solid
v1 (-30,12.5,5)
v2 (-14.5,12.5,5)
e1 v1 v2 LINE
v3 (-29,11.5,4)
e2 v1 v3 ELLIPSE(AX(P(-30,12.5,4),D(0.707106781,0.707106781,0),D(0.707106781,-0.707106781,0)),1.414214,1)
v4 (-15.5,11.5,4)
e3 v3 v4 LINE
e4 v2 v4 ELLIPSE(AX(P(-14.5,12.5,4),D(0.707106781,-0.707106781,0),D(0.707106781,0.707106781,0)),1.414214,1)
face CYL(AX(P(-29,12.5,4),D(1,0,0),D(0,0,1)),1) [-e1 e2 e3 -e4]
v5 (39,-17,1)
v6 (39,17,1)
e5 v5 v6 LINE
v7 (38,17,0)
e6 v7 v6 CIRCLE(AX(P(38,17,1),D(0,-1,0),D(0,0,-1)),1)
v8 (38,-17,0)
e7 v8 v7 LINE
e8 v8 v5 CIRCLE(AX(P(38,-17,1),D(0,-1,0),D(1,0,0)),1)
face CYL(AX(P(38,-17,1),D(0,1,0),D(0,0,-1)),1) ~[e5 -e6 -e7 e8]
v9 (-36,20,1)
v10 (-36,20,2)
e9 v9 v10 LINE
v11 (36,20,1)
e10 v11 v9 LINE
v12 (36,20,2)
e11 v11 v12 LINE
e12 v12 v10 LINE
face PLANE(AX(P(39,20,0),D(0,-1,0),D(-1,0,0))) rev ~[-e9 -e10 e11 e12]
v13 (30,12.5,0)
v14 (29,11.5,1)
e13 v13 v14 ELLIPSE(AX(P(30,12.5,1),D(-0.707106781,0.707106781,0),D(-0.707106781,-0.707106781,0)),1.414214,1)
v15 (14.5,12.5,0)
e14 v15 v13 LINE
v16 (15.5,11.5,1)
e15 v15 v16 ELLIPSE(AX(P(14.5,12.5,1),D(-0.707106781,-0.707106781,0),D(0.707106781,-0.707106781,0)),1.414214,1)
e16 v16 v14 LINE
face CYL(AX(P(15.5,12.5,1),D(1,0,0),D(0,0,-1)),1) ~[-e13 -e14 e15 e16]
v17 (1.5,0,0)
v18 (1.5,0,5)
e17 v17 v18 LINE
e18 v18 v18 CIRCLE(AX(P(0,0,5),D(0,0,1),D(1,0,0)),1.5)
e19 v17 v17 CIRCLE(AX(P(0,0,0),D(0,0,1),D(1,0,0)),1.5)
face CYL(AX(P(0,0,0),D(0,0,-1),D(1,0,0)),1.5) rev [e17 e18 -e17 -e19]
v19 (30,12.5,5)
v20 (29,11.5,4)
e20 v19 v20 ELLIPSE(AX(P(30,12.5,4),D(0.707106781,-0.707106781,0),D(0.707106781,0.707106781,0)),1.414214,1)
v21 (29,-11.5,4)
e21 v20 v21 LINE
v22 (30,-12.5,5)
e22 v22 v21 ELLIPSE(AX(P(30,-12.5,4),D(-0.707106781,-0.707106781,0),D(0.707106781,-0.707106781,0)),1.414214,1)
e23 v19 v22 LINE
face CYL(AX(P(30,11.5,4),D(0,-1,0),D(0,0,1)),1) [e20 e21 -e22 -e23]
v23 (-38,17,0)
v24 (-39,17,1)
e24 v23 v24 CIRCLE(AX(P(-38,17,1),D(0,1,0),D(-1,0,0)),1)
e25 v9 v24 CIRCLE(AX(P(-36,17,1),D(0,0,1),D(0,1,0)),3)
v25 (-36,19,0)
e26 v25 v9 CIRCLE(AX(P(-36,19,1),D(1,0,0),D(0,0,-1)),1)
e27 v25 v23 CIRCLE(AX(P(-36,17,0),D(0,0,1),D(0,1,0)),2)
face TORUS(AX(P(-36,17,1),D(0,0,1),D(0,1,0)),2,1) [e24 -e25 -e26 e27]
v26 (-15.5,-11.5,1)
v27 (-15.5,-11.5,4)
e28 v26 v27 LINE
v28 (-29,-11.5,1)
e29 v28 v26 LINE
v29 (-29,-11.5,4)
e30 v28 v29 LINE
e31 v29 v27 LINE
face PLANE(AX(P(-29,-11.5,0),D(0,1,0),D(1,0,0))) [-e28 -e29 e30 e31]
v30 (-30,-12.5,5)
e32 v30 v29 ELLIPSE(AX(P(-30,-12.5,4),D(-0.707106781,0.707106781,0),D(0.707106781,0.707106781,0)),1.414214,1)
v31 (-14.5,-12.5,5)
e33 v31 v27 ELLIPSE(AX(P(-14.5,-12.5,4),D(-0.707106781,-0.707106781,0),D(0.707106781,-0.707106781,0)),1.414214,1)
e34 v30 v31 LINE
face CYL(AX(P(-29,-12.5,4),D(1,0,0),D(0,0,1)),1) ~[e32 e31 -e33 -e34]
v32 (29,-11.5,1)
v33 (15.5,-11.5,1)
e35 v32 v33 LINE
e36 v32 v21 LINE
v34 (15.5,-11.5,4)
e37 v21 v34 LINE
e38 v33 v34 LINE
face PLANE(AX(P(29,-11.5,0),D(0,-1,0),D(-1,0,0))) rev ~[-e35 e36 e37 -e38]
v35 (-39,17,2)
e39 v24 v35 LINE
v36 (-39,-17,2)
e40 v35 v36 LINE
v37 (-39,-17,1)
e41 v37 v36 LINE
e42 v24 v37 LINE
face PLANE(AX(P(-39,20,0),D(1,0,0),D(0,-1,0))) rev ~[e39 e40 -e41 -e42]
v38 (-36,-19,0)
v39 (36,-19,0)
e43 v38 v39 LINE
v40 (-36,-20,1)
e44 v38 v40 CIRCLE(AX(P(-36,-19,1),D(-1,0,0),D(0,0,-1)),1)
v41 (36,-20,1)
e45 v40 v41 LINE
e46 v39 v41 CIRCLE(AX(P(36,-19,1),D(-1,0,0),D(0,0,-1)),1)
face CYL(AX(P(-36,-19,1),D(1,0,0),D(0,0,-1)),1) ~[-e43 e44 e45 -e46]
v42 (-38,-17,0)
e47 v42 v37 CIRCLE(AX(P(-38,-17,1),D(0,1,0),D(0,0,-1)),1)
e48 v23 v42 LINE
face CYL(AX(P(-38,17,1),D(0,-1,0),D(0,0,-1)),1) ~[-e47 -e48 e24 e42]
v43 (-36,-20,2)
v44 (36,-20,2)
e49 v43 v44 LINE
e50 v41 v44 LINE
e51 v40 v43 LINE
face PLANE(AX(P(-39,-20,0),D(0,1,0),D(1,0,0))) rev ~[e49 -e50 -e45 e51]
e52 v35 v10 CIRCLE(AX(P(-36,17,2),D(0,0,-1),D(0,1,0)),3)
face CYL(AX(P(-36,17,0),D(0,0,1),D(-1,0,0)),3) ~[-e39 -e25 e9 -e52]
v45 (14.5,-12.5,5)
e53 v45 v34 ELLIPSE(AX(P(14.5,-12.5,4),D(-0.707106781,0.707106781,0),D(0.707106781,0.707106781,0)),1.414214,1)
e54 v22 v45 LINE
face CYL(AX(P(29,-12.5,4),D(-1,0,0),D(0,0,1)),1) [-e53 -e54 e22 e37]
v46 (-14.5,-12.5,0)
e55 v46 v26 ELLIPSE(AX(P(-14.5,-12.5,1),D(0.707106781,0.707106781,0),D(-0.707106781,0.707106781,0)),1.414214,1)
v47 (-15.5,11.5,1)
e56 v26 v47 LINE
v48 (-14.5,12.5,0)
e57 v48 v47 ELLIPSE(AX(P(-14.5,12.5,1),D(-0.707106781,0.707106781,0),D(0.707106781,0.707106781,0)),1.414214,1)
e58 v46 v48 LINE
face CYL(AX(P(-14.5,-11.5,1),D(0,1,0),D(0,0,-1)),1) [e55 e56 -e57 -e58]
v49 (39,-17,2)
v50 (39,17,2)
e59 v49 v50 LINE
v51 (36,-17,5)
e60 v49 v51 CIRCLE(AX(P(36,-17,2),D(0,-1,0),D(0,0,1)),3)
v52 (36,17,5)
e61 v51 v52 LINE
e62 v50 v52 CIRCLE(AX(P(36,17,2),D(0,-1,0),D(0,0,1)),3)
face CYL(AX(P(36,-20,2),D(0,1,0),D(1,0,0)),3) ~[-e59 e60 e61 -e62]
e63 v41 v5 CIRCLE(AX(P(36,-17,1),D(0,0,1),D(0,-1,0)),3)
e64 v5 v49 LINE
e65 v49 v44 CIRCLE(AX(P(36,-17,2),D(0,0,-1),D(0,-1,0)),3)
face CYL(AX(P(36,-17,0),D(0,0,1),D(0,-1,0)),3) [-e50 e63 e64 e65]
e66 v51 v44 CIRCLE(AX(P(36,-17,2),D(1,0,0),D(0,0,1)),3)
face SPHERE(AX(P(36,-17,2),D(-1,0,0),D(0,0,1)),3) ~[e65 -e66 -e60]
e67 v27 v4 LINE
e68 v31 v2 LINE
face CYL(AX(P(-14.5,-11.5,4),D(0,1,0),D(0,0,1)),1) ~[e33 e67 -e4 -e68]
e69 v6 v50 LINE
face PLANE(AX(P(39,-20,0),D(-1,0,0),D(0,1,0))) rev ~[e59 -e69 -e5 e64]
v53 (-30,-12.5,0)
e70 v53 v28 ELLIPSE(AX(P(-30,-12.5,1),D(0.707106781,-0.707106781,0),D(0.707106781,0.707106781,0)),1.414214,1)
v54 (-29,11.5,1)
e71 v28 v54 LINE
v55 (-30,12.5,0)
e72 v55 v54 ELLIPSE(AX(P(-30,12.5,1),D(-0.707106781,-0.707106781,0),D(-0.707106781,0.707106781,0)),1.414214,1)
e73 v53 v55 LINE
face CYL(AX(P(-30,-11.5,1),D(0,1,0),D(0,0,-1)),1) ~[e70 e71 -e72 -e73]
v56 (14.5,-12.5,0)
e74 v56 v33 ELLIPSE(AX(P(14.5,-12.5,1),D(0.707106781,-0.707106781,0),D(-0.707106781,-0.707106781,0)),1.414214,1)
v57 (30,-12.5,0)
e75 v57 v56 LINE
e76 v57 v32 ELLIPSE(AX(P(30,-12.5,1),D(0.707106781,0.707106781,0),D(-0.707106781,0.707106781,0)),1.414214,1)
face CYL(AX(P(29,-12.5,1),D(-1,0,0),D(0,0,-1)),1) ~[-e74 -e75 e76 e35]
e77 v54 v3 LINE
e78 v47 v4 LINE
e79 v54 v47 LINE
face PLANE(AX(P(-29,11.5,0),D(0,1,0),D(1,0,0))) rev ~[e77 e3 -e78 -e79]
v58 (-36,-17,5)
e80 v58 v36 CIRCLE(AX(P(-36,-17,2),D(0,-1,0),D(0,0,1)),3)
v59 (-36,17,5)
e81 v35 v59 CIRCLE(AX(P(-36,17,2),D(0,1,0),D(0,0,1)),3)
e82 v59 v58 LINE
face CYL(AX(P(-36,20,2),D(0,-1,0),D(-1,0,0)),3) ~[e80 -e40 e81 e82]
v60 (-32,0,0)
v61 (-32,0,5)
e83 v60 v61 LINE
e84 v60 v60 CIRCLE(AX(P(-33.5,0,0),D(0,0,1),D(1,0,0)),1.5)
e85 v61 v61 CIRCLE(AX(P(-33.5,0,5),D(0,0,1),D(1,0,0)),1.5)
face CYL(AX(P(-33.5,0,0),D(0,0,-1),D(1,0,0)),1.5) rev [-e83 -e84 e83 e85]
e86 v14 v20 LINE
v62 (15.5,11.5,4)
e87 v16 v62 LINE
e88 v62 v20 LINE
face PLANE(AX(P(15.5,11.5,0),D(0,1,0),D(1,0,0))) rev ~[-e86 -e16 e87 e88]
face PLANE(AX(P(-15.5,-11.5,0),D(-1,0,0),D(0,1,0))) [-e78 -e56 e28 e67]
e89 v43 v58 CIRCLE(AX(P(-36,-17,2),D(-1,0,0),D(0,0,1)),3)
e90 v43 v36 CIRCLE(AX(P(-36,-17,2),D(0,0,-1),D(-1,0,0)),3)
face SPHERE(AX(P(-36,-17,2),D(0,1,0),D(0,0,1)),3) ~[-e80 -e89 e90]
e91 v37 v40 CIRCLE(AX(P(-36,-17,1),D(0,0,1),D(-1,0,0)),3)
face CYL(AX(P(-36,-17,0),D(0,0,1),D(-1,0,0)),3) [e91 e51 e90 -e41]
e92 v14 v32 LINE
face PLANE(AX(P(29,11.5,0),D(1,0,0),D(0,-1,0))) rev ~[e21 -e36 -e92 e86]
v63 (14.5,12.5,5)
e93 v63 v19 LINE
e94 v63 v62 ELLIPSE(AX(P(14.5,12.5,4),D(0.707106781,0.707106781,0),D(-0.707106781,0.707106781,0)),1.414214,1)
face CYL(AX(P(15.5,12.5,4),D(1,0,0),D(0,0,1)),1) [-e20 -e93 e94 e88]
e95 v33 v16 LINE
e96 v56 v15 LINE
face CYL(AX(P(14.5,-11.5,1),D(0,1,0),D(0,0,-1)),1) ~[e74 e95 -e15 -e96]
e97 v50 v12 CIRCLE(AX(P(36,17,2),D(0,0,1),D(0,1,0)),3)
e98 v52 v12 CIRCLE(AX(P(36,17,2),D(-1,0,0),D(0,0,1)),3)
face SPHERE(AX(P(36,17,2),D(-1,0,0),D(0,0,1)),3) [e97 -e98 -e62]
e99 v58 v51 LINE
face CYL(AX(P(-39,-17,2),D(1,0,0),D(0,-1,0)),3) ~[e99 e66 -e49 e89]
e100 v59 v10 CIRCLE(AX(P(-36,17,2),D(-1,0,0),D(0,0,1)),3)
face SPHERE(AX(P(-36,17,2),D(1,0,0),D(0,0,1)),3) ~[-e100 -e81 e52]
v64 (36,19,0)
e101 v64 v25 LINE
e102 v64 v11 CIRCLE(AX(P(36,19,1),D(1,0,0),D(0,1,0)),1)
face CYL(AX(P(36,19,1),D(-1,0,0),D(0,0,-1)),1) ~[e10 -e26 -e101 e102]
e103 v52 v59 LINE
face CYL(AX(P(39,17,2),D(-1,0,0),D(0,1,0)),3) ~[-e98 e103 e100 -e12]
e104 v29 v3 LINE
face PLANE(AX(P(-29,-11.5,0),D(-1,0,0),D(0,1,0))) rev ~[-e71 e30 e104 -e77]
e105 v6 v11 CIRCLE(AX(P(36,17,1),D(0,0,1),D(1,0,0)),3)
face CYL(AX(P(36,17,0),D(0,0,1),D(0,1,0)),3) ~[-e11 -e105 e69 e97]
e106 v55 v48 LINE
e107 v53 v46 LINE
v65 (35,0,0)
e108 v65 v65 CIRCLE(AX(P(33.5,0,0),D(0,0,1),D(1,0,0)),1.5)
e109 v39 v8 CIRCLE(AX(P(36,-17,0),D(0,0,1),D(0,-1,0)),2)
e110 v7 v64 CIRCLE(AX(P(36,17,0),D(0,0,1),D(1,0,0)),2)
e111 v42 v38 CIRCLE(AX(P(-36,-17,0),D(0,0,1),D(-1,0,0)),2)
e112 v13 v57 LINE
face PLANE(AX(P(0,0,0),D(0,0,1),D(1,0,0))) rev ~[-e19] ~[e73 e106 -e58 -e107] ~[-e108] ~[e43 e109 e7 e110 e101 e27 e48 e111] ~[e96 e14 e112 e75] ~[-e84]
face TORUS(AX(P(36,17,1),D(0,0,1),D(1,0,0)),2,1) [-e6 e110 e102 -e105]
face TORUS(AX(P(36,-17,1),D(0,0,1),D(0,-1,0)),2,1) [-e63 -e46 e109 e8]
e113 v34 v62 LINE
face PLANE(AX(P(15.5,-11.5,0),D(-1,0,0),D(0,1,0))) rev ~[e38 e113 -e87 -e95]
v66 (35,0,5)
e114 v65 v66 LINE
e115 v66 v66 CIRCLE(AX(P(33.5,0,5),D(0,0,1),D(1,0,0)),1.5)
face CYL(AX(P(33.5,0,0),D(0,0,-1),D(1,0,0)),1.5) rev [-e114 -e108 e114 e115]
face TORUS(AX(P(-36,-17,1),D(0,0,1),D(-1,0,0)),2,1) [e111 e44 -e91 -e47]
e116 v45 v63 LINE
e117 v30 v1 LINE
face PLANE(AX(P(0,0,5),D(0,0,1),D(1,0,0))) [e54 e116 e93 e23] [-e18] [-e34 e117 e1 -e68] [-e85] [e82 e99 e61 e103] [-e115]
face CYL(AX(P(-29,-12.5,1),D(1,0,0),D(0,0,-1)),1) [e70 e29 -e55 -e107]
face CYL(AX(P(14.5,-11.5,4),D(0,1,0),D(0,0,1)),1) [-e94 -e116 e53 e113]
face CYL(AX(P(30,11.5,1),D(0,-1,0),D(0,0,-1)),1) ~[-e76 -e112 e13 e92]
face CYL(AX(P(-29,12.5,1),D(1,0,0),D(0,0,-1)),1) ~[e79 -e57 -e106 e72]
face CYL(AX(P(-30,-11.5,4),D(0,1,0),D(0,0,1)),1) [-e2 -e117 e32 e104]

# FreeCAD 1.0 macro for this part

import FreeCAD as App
import Part
import Sketcher

V = App.Vector


def edges_at(feature, points):
    """Names of the edges that pass closest to the given points."""
    edges = feature.Shape.Edges
    near = lambda p: min(range(len(edges)), key=lambda i: edges[i].distToShape(Part.Vertex(*p))[0])
    return sorted({f"Edge{near(p) + 1}" for p in points})

doc = App.newDocument("Part")
body = doc.addObject("PartDesign::Body", "Body")

sketch1 = doc.addObject("Sketcher::SketchObject", "Sketch")
body.addObject(sketch1)
sketch1.AttachmentSupport = (doc.XY_Plane, [""])
sketch1.MapMode = "FlatFace"
sketch1.addGeometry(Part.LineSegment(V(-39, 20, 0), V(-39, -20, 0)), False)
sketch1.addGeometry(Part.LineSegment(V(-39, -20, 0), V(39, -20, 0)), False)
sketch1.addGeometry(Part.LineSegment(V(39, -20, 0), V(39, 20, 0)), False)
sketch1.addGeometry(Part.LineSegment(V(39, 20, 0), V(-39, 20, 0)), False)
sketch1.addGeometry(Part.Circle(V(-33.5, 0, 0), V(0, 0, 1), 1.5), False)
sketch1.addGeometry(Part.LineSegment(V(-15.5, -11.5, 0), V(-29, -11.5, 0)), False)
sketch1.addGeometry(Part.LineSegment(V(-29, -11.5, 0), V(-29, 11.5, 0)), False)
sketch1.addGeometry(Part.LineSegment(V(-29, 11.5, 0), V(-15.5, 11.5, 0)), False)
sketch1.addGeometry(Part.LineSegment(V(-15.5, 11.5, 0), V(-15.5, -11.5, 0)), False)
sketch1.addGeometry(Part.Circle(V(0, 0, 0), V(0, 0, 1), 1.5), False)
sketch1.addGeometry(Part.LineSegment(V(15.5, -11.5, 0), V(15.5, 11.5, 0)), False)
sketch1.addGeometry(Part.LineSegment(V(15.5, 11.5, 0), V(29, 11.5, 0)), False)
sketch1.addGeometry(Part.LineSegment(V(29, 11.5, 0), V(29, -11.5, 0)), False)
sketch1.addGeometry(Part.LineSegment(V(29, -11.5, 0), V(15.5, -11.5, 0)), False)
sketch1.addGeometry(Part.Circle(V(33.5, 0, 0), V(0, 0, 1), 1.5), False)
sketch1.addConstraint(Sketcher.Constraint("Coincident", 0, 2, 1, 1))
sketch1.addConstraint(Sketcher.Constraint("Coincident", 1, 2, 2, 1))
sketch1.addConstraint(Sketcher.Constraint("Coincident", 2, 2, 3, 1))
sketch1.addConstraint(Sketcher.Constraint("Coincident", 3, 2, 0, 1))
sketch1.addConstraint(Sketcher.Constraint("Coincident", 5, 2, 6, 1))
sketch1.addConstraint(Sketcher.Constraint("Coincident", 6, 2, 7, 1))
sketch1.addConstraint(Sketcher.Constraint("Coincident", 7, 2, 8, 1))
sketch1.addConstraint(Sketcher.Constraint("Coincident", 8, 2, 5, 1))
sketch1.addConstraint(Sketcher.Constraint("Coincident", 10, 2, 11, 1))
sketch1.addConstraint(Sketcher.Constraint("Coincident", 11, 2, 12, 1))
sketch1.addConstraint(Sketcher.Constraint("Coincident", 12, 2, 13, 1))
sketch1.addConstraint(Sketcher.Constraint("Coincident", 13, 2, 10, 1))
sketch1.addConstraint(Sketcher.Constraint("Vertical", 0))
sketch1.addConstraint(Sketcher.Constraint("Horizontal", 1))
sketch1.addConstraint(Sketcher.Constraint("Vertical", 2))
sketch1.addConstraint(Sketcher.Constraint("Horizontal", 3))
sketch1.addConstraint(Sketcher.Constraint("Horizontal", 5))
sketch1.addConstraint(Sketcher.Constraint("Vertical", 6))
sketch1.addConstraint(Sketcher.Constraint("Horizontal", 7))
sketch1.addConstraint(Sketcher.Constraint("Vertical", 8))
sketch1.addConstraint(Sketcher.Constraint("Vertical", 10))
sketch1.addConstraint(Sketcher.Constraint("Horizontal", 11))
sketch1.addConstraint(Sketcher.Constraint("Vertical", 12))
sketch1.addConstraint(Sketcher.Constraint("Horizontal", 13))
sketch1.addConstraint(Sketcher.Constraint("Coincident", 9, 3, -1, 1))
sketch1.addConstraint(Sketcher.Constraint("Equal", 4, 9))
sketch1.addConstraint(Sketcher.Constraint("Equal", 9, 14))
sketch1.addConstraint(Sketcher.Constraint("Symmetric", 4, 3, 14, 3, -1, 1))
sketch1.addConstraint(Sketcher.Constraint("Symmetric", 0, 2, 2, 2, -1, 1))
sketch1.addConstraint(Sketcher.Constraint("Symmetric", 8, 2, 10, 2, -1, 1))
sketch1.addConstraint(Sketcher.Constraint("Symmetric", 6, 2, 12, 2, -1, 1))
sketch1.addConstraint(Sketcher.Constraint("PointOnObject", 4, 3, -1))
sketch1.addConstraint(Sketcher.Constraint("Horizontal", 7, 2, 10, 2))
sketch1.addConstraint(Sketcher.Constraint("Diameter", 4, 3.0))
sketch1.addConstraint(Sketcher.Constraint("DistanceX", 1, 1, 1, 2, 78.0))
sketch1.addConstraint(Sketcher.Constraint("DistanceY", 0, 2, 0, 1, 40.0))
sketch1.addConstraint(Sketcher.Constraint("DistanceY", 6, 1, 6, 2, 23.0))
sketch1.addConstraint(Sketcher.Constraint("DistanceX", 5, 2, 5, 1, 13.5))
sketch1.addConstraint(Sketcher.Constraint("DistanceX", 5, 2, -1, 1, 29.0))
sketch1.addConstraint(Sketcher.Constraint("DistanceX", 4, 3, 14, 3, 67.0))
pad1 = doc.addObject("PartDesign::Pad", "Pad")
body.addObject(pad1)
pad1.Profile = sketch1
pad1.Length = 5
doc.recompute()

fillet = doc.addObject("PartDesign::Fillet", "Fillet")
body.addObject(fillet)
fillet.Base = (pad1, edges_at(pad1, [
    (0, 20, 5),
    (-39, 0, 5),
    (0, -20, 5),
    (39, 0, 5),
    (-39, -20, 2.5),
    (-39, 20, 2.5),
    (39, 20, 2.5),
    (39, -20, 2.5),
]))
fillet.Radius = 3
doc.recompute()

fillet2 = doc.addObject("PartDesign::Fillet", "Fillet001")
body.addObject(fillet2)
fillet2.Base = (fillet, edges_at(fillet, [(0, -20, 0)]))
fillet2.Radius = 1
doc.recompute()

fillet3 = doc.addObject("PartDesign::Fillet", "Fillet002")
body.addObject(fillet3)
fillet3.Base = (fillet2, edges_at(fillet2, [
    (-22.25, -11.5, 5),
    (-15.5, 0, 5),
    (-22.25, 11.5, 5),
    (-29, 0, 5),
    (15.5, 0, 5),
    (22.25, 11.5, 5),
    (29, 0, 5),
    (22.25, -11.5, 5),
    (-29, 0, 0),
    (-15.5, 0, 0),
    (-22.25, 11.5, 0),
    (-22.25, -11.5, 0),
    (22.25, -11.5, 0),
    (29, 0, 0),
    (22.25, 11.5, 0),
    (15.5, 0, 0),
]))
fillet3.Radius = 1

doc.recompute()
